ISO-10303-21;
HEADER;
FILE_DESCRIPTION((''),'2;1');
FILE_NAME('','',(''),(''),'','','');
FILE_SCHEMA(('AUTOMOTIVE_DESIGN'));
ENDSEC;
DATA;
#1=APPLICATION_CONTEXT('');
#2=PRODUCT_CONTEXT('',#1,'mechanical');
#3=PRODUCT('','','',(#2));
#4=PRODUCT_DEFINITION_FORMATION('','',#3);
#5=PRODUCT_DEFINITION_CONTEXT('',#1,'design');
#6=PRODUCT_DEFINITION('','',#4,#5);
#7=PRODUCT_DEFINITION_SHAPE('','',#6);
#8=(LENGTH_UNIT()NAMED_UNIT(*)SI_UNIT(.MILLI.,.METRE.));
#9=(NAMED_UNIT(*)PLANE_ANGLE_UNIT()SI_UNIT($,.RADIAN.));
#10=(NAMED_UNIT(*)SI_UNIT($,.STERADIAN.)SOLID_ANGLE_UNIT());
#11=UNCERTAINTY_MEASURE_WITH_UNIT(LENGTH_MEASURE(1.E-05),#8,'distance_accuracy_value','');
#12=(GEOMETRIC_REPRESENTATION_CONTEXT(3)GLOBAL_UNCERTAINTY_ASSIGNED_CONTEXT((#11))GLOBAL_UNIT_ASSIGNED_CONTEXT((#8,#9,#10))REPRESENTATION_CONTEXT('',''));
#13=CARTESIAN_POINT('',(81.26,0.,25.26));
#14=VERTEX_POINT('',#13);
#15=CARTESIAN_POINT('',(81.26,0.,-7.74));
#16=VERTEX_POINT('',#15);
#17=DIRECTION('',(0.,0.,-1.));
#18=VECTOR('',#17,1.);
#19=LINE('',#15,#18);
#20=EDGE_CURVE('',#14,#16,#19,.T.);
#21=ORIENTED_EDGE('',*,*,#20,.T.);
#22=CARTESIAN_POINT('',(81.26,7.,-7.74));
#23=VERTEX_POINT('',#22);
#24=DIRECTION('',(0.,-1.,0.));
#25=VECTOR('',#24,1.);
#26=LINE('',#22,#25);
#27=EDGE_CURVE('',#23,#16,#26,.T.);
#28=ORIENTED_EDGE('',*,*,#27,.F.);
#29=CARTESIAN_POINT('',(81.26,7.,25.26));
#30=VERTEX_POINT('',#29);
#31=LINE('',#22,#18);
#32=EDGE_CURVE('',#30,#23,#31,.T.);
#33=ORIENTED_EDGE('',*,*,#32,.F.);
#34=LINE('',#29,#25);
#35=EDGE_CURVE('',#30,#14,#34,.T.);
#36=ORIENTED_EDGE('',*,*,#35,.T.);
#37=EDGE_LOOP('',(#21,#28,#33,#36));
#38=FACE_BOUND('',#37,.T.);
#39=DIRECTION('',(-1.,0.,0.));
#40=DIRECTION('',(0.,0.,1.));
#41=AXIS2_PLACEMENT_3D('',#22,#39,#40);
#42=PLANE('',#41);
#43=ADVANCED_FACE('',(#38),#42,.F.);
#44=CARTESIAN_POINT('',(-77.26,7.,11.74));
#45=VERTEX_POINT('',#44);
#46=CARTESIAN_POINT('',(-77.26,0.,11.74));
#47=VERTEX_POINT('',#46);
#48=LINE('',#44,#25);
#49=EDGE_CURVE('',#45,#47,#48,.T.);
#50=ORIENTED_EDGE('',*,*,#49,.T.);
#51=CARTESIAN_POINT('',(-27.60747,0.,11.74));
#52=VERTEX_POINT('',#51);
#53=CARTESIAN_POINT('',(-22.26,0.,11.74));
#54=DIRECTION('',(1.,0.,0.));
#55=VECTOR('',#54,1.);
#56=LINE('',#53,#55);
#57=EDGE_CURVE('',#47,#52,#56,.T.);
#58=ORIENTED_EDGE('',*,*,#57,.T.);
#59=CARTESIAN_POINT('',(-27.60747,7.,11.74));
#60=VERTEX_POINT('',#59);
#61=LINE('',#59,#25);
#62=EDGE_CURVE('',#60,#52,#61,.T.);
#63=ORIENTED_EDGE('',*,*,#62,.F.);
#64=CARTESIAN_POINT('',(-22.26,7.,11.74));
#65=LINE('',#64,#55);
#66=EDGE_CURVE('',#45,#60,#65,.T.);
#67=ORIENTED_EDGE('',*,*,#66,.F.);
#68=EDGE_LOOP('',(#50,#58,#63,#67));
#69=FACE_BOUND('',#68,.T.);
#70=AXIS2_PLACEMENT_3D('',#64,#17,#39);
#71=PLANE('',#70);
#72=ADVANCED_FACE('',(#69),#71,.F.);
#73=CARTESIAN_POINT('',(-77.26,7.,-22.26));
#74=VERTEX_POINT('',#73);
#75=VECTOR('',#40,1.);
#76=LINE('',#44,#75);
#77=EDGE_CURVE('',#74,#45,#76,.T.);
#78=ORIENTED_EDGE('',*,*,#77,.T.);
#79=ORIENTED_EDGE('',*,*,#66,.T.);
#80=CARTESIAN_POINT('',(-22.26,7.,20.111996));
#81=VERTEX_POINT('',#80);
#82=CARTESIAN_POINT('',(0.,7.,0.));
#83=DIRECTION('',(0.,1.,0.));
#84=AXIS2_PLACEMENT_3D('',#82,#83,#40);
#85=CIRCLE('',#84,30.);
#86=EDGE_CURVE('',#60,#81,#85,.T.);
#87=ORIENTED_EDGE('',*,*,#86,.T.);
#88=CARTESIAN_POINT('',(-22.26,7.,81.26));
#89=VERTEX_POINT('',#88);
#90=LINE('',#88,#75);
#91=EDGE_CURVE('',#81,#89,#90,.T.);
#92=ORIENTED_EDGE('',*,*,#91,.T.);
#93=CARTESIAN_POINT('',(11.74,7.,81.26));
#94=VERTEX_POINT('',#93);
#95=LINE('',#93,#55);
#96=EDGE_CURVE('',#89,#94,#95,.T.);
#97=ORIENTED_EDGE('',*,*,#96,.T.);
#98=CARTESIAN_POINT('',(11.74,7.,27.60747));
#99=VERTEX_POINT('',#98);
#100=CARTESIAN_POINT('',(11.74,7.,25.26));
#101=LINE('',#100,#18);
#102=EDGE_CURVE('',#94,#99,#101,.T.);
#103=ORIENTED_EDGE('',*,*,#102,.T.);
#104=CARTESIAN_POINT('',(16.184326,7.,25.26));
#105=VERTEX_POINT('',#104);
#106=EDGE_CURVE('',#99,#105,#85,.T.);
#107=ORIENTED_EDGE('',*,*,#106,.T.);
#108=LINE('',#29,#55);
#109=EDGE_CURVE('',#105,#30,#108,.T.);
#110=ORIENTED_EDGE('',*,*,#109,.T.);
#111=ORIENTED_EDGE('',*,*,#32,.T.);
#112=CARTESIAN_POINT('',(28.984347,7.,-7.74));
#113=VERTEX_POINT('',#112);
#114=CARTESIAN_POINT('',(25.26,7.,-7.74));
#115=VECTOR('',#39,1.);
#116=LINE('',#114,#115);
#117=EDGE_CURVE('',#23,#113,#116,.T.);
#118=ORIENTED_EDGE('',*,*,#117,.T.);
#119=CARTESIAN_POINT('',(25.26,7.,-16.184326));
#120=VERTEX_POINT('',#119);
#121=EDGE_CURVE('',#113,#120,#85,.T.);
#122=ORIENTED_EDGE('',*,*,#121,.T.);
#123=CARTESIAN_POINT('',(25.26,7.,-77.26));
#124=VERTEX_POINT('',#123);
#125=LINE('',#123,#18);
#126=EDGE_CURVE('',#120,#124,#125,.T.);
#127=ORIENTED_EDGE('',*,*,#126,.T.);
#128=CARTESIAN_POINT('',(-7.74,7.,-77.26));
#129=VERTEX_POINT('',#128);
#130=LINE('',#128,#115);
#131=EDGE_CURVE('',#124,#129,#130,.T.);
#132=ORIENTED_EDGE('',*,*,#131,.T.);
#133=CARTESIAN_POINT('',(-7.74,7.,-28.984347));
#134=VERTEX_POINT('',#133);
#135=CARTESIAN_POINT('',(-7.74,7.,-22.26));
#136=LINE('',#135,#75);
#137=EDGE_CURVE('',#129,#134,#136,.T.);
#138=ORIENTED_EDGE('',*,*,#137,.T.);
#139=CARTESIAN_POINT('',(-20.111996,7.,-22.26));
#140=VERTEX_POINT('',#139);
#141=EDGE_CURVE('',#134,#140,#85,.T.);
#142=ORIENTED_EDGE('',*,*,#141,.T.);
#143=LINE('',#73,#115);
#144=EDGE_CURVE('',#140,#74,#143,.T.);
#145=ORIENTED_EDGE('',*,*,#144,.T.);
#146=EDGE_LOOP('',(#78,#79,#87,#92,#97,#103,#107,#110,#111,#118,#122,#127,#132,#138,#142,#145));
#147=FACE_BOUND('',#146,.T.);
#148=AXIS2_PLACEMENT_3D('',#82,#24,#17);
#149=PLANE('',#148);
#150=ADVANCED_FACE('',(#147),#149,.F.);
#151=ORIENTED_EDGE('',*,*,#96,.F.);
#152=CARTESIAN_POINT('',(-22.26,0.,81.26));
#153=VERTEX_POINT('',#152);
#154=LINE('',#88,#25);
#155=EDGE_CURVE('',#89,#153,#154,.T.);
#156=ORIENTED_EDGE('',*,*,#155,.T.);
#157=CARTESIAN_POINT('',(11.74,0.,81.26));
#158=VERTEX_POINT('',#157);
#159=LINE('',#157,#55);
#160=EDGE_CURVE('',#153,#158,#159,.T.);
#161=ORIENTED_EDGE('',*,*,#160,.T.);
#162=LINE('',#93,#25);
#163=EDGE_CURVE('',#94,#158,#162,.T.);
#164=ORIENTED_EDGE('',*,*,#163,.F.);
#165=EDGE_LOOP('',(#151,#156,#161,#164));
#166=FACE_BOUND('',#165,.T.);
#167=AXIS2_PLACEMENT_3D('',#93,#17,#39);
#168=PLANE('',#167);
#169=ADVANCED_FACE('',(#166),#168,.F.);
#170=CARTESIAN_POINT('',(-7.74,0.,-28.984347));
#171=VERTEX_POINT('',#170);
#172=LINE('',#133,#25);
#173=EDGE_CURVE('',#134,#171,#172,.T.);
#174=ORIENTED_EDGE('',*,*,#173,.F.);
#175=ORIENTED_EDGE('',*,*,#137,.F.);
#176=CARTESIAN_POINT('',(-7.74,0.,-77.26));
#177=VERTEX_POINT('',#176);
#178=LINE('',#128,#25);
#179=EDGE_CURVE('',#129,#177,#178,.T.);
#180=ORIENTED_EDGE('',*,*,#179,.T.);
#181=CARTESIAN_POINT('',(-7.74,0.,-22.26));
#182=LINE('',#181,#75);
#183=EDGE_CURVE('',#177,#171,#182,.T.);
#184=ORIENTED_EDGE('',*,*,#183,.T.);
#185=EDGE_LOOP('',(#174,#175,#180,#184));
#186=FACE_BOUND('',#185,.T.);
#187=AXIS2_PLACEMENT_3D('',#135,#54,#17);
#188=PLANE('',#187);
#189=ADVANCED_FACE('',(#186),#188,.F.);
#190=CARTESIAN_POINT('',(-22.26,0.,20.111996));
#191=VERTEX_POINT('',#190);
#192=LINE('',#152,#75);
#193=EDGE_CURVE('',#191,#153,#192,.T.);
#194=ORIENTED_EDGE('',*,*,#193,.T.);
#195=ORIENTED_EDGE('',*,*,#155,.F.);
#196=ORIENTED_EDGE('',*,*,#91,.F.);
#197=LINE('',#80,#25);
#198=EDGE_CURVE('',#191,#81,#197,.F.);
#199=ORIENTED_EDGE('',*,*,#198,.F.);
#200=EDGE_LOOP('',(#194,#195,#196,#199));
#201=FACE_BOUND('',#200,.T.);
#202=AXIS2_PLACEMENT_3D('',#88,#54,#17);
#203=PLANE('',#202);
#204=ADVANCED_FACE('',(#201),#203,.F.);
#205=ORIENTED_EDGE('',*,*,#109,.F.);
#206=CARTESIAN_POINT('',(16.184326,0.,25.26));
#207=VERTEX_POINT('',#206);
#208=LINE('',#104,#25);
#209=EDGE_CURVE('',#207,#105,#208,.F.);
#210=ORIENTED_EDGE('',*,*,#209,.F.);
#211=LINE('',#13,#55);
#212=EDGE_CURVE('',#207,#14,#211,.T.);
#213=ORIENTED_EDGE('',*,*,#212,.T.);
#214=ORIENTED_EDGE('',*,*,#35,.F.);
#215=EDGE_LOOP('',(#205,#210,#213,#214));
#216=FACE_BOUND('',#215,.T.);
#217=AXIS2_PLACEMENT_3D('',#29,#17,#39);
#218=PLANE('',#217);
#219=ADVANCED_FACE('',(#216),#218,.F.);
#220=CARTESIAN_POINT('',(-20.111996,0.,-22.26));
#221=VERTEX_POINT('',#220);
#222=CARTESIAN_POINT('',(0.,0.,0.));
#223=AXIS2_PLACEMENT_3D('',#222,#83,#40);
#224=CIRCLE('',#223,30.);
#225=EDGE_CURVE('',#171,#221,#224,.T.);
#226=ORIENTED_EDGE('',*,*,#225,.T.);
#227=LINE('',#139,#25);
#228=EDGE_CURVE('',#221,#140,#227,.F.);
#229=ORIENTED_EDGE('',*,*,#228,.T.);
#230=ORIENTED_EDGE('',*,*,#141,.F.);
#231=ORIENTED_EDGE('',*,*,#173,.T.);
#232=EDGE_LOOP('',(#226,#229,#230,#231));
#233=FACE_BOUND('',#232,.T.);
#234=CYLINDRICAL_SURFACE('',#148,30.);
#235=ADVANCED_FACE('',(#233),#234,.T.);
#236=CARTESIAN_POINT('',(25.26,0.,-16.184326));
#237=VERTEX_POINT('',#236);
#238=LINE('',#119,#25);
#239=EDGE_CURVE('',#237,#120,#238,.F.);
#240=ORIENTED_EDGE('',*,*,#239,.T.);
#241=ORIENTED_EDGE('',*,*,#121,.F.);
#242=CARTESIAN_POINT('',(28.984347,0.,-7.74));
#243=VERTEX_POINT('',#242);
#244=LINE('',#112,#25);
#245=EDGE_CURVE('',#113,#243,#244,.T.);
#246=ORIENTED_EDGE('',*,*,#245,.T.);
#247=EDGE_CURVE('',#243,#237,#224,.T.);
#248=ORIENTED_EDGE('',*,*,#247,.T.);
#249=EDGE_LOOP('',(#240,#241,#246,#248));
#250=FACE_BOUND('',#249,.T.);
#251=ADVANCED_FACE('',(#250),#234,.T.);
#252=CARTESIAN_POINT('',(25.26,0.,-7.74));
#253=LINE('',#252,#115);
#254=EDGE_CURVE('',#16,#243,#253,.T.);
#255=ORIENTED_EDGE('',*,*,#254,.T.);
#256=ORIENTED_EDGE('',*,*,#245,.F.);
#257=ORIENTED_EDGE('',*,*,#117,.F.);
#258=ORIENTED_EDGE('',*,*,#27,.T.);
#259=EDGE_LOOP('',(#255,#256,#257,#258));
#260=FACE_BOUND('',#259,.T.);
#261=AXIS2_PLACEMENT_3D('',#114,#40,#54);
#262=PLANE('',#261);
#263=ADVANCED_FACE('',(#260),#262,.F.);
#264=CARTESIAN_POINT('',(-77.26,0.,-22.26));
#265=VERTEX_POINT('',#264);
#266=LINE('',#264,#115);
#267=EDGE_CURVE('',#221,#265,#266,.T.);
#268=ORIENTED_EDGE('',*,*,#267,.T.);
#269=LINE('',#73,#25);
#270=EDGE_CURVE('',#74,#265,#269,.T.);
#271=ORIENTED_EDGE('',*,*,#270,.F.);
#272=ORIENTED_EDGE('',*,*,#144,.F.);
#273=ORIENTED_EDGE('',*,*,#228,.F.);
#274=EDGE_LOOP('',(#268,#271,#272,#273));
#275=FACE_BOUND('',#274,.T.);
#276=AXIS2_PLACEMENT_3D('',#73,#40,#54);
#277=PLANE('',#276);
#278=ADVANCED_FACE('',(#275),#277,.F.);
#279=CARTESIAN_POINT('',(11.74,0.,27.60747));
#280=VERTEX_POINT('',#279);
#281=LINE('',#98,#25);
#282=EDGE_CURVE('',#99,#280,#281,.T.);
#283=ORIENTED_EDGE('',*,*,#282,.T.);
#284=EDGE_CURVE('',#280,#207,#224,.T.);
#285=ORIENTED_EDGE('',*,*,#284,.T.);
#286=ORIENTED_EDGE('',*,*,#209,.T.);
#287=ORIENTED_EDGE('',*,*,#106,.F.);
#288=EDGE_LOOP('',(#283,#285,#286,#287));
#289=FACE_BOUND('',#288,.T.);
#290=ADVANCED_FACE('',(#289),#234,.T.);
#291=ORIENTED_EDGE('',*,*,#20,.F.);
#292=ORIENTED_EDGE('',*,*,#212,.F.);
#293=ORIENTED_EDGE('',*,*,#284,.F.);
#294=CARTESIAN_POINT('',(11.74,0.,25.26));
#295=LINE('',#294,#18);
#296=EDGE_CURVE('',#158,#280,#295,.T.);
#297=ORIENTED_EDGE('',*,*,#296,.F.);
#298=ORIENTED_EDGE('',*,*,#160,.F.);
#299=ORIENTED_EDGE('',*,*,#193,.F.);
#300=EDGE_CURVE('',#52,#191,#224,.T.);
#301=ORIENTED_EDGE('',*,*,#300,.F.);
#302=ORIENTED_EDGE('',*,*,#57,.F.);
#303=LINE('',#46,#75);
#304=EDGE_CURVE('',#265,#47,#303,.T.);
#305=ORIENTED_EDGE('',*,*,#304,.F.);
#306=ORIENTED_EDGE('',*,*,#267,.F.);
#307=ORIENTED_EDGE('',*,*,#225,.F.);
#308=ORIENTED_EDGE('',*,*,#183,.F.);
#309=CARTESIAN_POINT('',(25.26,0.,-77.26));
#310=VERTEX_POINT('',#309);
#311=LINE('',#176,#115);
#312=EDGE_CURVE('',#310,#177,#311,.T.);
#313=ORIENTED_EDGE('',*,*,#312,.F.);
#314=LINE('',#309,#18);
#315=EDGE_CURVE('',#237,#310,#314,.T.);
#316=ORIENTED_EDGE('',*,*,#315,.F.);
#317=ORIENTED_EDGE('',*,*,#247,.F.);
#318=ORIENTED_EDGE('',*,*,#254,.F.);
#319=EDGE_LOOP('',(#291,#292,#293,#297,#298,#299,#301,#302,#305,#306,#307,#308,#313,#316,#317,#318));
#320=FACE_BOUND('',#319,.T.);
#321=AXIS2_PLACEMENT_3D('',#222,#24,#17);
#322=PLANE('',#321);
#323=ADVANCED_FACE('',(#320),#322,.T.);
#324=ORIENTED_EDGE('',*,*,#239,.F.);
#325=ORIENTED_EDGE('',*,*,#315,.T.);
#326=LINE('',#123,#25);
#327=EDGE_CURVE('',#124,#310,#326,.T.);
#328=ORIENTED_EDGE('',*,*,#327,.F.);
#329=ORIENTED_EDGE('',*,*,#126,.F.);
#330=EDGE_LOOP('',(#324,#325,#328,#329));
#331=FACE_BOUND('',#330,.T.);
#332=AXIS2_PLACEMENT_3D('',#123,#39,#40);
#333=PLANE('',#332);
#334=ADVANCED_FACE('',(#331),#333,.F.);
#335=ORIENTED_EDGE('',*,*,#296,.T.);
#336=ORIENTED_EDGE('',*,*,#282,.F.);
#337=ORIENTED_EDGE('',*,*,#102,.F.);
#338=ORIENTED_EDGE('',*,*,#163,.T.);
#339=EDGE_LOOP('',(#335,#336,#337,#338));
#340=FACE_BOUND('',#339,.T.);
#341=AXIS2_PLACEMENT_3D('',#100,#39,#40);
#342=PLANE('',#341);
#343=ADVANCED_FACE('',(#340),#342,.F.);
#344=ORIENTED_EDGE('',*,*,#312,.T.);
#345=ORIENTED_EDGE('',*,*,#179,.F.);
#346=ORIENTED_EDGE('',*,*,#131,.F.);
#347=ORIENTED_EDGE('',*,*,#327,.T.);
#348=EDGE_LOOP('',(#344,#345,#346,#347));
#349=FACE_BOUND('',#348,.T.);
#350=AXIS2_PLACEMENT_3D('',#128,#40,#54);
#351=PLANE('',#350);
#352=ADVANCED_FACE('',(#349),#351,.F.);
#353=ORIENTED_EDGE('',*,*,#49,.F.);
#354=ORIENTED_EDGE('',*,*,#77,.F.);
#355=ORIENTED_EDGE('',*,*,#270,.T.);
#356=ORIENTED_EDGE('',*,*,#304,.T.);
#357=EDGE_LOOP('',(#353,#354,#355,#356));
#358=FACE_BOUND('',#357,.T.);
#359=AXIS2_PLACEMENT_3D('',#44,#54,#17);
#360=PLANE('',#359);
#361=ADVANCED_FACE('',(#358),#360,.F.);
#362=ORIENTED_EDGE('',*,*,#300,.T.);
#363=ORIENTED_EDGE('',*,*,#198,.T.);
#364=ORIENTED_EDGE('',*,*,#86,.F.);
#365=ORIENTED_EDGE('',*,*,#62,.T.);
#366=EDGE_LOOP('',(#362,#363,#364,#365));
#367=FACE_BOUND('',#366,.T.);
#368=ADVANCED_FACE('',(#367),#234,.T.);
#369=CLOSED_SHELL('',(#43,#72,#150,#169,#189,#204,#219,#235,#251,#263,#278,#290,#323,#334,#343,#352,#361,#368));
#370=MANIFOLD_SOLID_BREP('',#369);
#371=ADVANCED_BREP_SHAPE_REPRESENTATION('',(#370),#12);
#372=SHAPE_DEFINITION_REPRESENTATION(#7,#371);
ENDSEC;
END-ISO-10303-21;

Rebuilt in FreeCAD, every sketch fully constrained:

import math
import FreeCAD as App
import Part
import Sketcher

V = App.Vector
Q = App.Units.Quantity


def add_polygon(sketch, points):
    """Adds a closed chain of lines whose ends are joined by coincident constraints."""
    first, n = sketch.GeometryCount, len(points)
    for a, b in zip(points, points[1:] + points[:1]):
        sketch.addGeometry(Part.LineSegment(App.Vector(*a, 0), App.Vector(*b, 0)), False)
    for i in range(n):
        sketch.addConstraint(Sketcher.Constraint("Coincident", first + i, 2, first + (i + 1) % n, 1))

doc = App.newDocument("Part")
params = doc.addObject("Spreadsheet::Sheet", "Params")
for row, (alias, value) in enumerate([
    ("sketch1_width", "55 mm"),
    ("sketch1_width2", "34 mm"),
    ("sketch1_width3", "56 mm"),
    ("sketch1_width4", "3.3 mm"),
    ("sketch1_width5", "69.52 mm"),
    ("pad1_length", "7 mm"),
    ("sketch2_diameter", "60 mm"),
    ("pad2_length", "7 mm"),
], start=1):
    params.set(f"A{row}", alias)
    params.set(f"B{row}", "=" + value)
    params.setAlias(f"B{row}", alias)

body = doc.addObject("PartDesign::Body", "Body")

sketch1 = body.newObject("Sketcher::SketchObject", "Sketch")
sketch1.AttachmentSupport = (doc.getObject("XZ_Plane"), [""])
sketch1.MapMode = "FlatFace"
add_polygon(sketch1, [(-77.3, -22.3), (-77.3, 11.7), (-22.3, 11.7), (-22.3, 81.3), (11.7, 81.3), (11.7, 25.3), (81.3, 25.3), (81.3, -7.7), (25.3, -7.7), (25.3, -77.3), (-7.7, -77.3), (-7.7, -22.3)])
sketch1.addGeometry(Part.LineSegment(V(-1.6, -1.3, 0), V(1.6, -1.3, 0)), False)
sketch1.addGeometry(Part.ArcOfCircle(Part.Circle(V(0.3, 0, 0), V(0, 0, 1), 1.8), math.radians(-45), math.radians(45)), False)
sketch1.addGeometry(Part.LineSegment(V(1.6, 1.3, 0), V(-1.6, 1.3, 0)), False)
sketch1.addGeometry(Part.ArcOfCircle(Part.Circle(V(-0.3, 0, 0), V(0, 0, 1), 1.8), math.radians(135), math.radians(225)), False)
sketch1.addConstraint([
    Sketcher.Constraint("Coincident", 12, 2, 13, 1),
    Sketcher.Constraint("Coincident", 13, 2, 14, 1),
    Sketcher.Constraint("Coincident", 14, 2, 15, 1),
    Sketcher.Constraint("Coincident", 15, 2, 12, 1),
    Sketcher.Constraint("Vertical", 0),
    Sketcher.Constraint("Horizontal", 1),
    Sketcher.Constraint("Vertical", 2),
    Sketcher.Constraint("Horizontal", 3),
    Sketcher.Constraint("Vertical", 4),
    Sketcher.Constraint("Horizontal", 5),
    Sketcher.Constraint("Vertical", 6),
    Sketcher.Constraint("Horizontal", 7),
    Sketcher.Constraint("Vertical", 8),
    Sketcher.Constraint("Horizontal", 9),
    Sketcher.Constraint("Vertical", 10),
    Sketcher.Constraint("Horizontal", 11),
    Sketcher.Constraint("Horizontal", 12),
    Sketcher.Constraint("Horizontal", 14),
    Sketcher.Constraint("Equal", 13, 15),
    Sketcher.Constraint("Symmetric", 13, 3, 15, 3, -1, 1),
    Sketcher.Constraint("Symmetric", 12, 2, 13, 2, -1),
    Sketcher.Constraint("Equal", 5, 11),
    Sketcher.Constraint("Equal", 3, 0),
    Sketcher.Constraint("Equal", 11, 2),
    Sketcher.Constraint("Equal", 7, 4),
    Sketcher.Constraint("Equal", 9, 6),
    Sketcher.Constraint("Equal", 2, 8),
    Sketcher.Constraint("DistanceX", 1, 1, 1, 2, Q("55 mm")),
    Sketcher.Constraint("DistanceX", 3, 1, 3, 2, Q("34 mm")),
    Sketcher.Constraint("DistanceX", 7, 2, 7, 1, Q("56 mm")),
    Sketcher.Constraint("DistanceX", 12, 1, 12, 2, Q("3.3 mm")),
    Sketcher.Constraint("DistanceX", 15, 3, 12, 2, Q("2 mm")),
    Sketcher.Constraint("DistanceX", 5, 1, 5, 2, Q("69.52 mm")),
    Sketcher.Constraint("DistanceY", 12, 2, -1, 1, Q("1.3 mm")),
    Sketcher.Constraint("DistanceX", 0, 2, -1, 1, Q("77.26 mm")),
    Sketcher.Constraint("DistanceY", -1, 1, 0, 2, Q("11.74 mm")),
])
sketch1.setExpression("Constraints[39]", "Params.sketch1_width")
sketch1.setExpression("Constraints[40]", "Params.sketch1_width2")
sketch1.setExpression("Constraints[41]", "Params.sketch1_width3")
sketch1.setExpression("Constraints[42]", "Params.sketch1_width4")
sketch1.setExpression("Constraints[44]", "Params.sketch1_width5")
pad1 = body.newObject("PartDesign::Pad", "Pad")
pad1.Profile = sketch1
pad1.setExpression("Length", "Params.pad1_length")
pad1.Reversed = True

sketch2 = body.newObject("Sketcher::SketchObject", "Sketch001")
sketch2.AttachmentSupport = (doc.getObject("XZ_Plane"), [""])
sketch2.MapMode = "FlatFace"
sketch2.addGeometry(Part.Circle(V(0, 0, 0), V(0, 0, 1), 30), False)
sketch2.addConstraint([
    Sketcher.Constraint("Coincident", 0, 3, -1, 1),
    Sketcher.Constraint("Diameter", 0, Q("60 mm")),
])
sketch2.setExpression("Constraints[1]", "Params.sketch2_diameter")
pad2 = body.newObject("PartDesign::Pad", "Pad001")
pad2.Profile = sketch2
pad2.setExpression("Length", "Params.pad2_length")
pad2.Reversed = True

doc.recompute()
